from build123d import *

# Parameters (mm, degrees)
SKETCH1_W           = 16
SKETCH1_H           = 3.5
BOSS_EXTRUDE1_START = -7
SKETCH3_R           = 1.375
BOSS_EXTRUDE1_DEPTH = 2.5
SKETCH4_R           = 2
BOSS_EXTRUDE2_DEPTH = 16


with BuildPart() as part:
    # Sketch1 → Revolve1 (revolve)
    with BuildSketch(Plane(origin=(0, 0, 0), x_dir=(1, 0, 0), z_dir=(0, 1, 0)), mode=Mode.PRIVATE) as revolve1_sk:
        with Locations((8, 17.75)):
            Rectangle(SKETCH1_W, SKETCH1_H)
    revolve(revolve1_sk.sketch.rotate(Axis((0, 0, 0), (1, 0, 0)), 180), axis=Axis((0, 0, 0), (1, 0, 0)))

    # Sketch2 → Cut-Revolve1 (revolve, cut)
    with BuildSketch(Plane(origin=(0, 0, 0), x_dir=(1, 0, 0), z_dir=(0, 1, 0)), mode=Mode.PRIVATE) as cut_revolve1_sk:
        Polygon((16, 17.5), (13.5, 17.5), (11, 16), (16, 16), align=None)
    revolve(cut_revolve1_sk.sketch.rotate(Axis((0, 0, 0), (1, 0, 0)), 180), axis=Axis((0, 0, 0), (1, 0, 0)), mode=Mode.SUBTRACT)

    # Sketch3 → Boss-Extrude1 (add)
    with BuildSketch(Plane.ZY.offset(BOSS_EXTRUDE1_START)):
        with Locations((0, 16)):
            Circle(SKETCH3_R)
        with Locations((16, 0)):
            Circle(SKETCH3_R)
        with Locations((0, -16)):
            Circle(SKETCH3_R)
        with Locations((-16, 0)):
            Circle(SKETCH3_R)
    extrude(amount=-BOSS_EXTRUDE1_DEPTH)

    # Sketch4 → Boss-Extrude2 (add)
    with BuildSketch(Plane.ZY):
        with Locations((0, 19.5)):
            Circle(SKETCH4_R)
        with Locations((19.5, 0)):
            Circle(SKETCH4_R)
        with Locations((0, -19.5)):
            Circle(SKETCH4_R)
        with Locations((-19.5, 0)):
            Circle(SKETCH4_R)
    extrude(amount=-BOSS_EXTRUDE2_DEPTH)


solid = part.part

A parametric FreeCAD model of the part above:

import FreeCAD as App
import Part
import Sketcher

doc = App.newDocument("Part")
body = doc.addObject("PartDesign::Body", "Body")

# Sketch on XZ plane
sketch1 = doc.addObject("Sketcher::SketchObject", "Sketch")
body.addObject(sketch1)
sketch1.AttachmentSupport = (doc.XZ_Plane, [""])
sketch1.MapMode = "FlatFace"
sketch1.addGeometry([
    Part.LineSegment(App.Vector(0, -19.5, 0), App.Vector(0, -16, 0)),
    Part.LineSegment(App.Vector(0, -16, 0), App.Vector(16, -16, 0)),
    Part.LineSegment(App.Vector(16, -16, 0), App.Vector(16, -19.5, 0)),
    Part.LineSegment(App.Vector(16, -19.5, 0), App.Vector(0, -19.5, 0)),
], False)
sketch1.addConstraint([
    Sketcher.Constraint("Coincident", 0, 2, 1, 1),
    Sketcher.Constraint("Coincident", 1, 2, 2, 1),
    Sketcher.Constraint("Coincident", 2, 2, 3, 1),
    Sketcher.Constraint("Coincident", 3, 2, 0, 1),
    Sketcher.Constraint("Vertical", 0),
    Sketcher.Constraint("Horizontal", 1),
    Sketcher.Constraint("Vertical", 2),
    Sketcher.Constraint("Horizontal", 3),
    Sketcher.Constraint("PointOnObject", 0, 2, -2),
    Sketcher.Constraint("DistanceX", 1, 1, 1, 2, 16.0),
    Sketcher.Constraint("DistanceY", 0, 1, 0, 2, 3.5),
    Sketcher.Constraint("DistanceY", 0, 2, -1, 1, 16.0),
])
revolution = doc.addObject("PartDesign::Revolution", "Revolution")
body.addObject(revolution)
revolution.Profile = sketch1
revolution.ReferenceAxis = (sketch1, ["H_Axis"])
revolution.Angle = 360

# Sketch on XZ plane
sketch2 = doc.addObject("Sketcher::SketchObject", "Sketch001")
body.addObject(sketch2)
sketch2.AttachmentSupport = (doc.XZ_Plane, [""])
sketch2.MapMode = "FlatFace"
sketch2.addGeometry([
    Part.LineSegment(App.Vector(16, -17.5, 0), App.Vector(13.5, -17.5, 0)),
    Part.LineSegment(App.Vector(13.5, -17.5, 0), App.Vector(11, -16, 0)),
    Part.LineSegment(App.Vector(11, -16, 0), App.Vector(16, -16, 0)),
    Part.LineSegment(App.Vector(16, -16, 0), App.Vector(16, -17.5, 0)),
], False)
sketch2.addConstraint([
    Sketcher.Constraint("Coincident", 0, 2, 1, 1),
    Sketcher.Constraint("Coincident", 1, 2, 2, 1),
    Sketcher.Constraint("Coincident", 2, 2, 3, 1),
    Sketcher.Constraint("Coincident", 3, 2, 0, 1),
    Sketcher.Constraint("Horizontal", 0),
    Sketcher.Constraint("Horizontal", 2),
    Sketcher.Constraint("Vertical", 3),
    Sketcher.Constraint("DistanceX", 2, 1, 2, 2, 5.0),
    Sketcher.Constraint("DistanceX", 0, 2, 0, 1, 2.5),
    Sketcher.Constraint("DistanceY", 3, 2, 3, 1, 1.5),
    Sketcher.Constraint("DistanceX", -1, 1, 1, 2, 11.0),
    Sketcher.Constraint("DistanceY", 1, 2, -1, 1, 16.0),
])
groove = doc.addObject("PartDesign::Groove", "Groove")
body.addObject(groove)
groove.Profile = sketch2
groove.ReferenceAxis = (sketch2, ["H_Axis"])
groove.Angle = 360

# Sketch on YZ plane
sketch3 = doc.addObject("Sketcher::SketchObject", "Sketch002")
body.addObject(sketch3)
sketch3.AttachmentSupport = (doc.YZ_Plane, [""])
sketch3.MapMode = "FlatFace"
sketch3.AttachmentOffset = App.Placement(App.Vector(0, 0, 7), App.Rotation())
sketch3.addGeometry([
    Part.Circle(App.Vector(16, 0, 0), App.Vector(0, 0, 1), 1.375),
    Part.Circle(App.Vector(0, 16, 0), App.Vector(0, 0, 1), 1.375),
    Part.Circle(App.Vector(-16, 0, 0), App.Vector(0, 0, 1), 1.375),
    Part.Circle(App.Vector(0, -16, 0), App.Vector(0, 0, 1), 1.375),
], False)
sketch3.addConstraint([
    Sketcher.Constraint("Equal", 0, 1),
    Sketcher.Constraint("Equal", 1, 2),
    Sketcher.Constraint("Equal", 2, 3),
    Sketcher.Constraint("Symmetric", 0, 3, 2, 3, -1, 1),
    Sketcher.Constraint("Symmetric", 1, 3, 3, 3, -1, 1),
    Sketcher.Constraint("PointOnObject", 0, 3, -1),
    Sketcher.Constraint("PointOnObject", 1, 3, -2),
    Sketcher.Constraint("Diameter", 0, 2.75),
    Sketcher.Constraint("DistanceX", -1, 1, 0, 3, 16.0),
    Sketcher.Constraint("DistanceY", -1, 1, 1, 3, 16.0),
])
pad1 = doc.addObject("PartDesign::Pad", "Pad")
body.addObject(pad1)
pad1.Profile = sketch3
pad1.Length = 2.5

# Sketch on YZ plane
sketch4 = doc.addObject("Sketcher::SketchObject", "Sketch003")
body.addObject(sketch4)
sketch4.AttachmentSupport = (doc.YZ_Plane, [""])
sketch4.MapMode = "FlatFace"
sketch4.addGeometry([
    Part.Circle(App.Vector(19.5, 0, 0), App.Vector(0, 0, 1), 2),
    Part.Circle(App.Vector(0, 19.5, 0), App.Vector(0, 0, 1), 2),
    Part.Circle(App.Vector(-19.5, 0, 0), App.Vector(0, 0, 1), 2),
    Part.Circle(App.Vector(0, -19.5, 0), App.Vector(0, 0, 1), 2),
], False)
sketch4.addConstraint([
    Sketcher.Constraint("Equal", 0, 1),
    Sketcher.Constraint("Equal", 1, 2),
    Sketcher.Constraint("Equal", 2, 3),
    Sketcher.Constraint("Symmetric", 0, 3, 2, 3, -1, 1),
    Sketcher.Constraint("Symmetric", 1, 3, 3, 3, -1, 1),
    Sketcher.Constraint("PointOnObject", 0, 3, -1),
    Sketcher.Constraint("PointOnObject", 1, 3, -2),
    Sketcher.Constraint("Diameter", 0, 4.0),
    Sketcher.Constraint("DistanceX", 2, 3, 0, 3, 39.0),
    Sketcher.Constraint("DistanceY", 3, 3, 1, 3, 39.0),
])
pad2 = doc.addObject("PartDesign::Pad", "Pad001")
body.addObject(pad2)
pad2.Profile = sketch4
pad2.Length = 16

doc.recompute()
